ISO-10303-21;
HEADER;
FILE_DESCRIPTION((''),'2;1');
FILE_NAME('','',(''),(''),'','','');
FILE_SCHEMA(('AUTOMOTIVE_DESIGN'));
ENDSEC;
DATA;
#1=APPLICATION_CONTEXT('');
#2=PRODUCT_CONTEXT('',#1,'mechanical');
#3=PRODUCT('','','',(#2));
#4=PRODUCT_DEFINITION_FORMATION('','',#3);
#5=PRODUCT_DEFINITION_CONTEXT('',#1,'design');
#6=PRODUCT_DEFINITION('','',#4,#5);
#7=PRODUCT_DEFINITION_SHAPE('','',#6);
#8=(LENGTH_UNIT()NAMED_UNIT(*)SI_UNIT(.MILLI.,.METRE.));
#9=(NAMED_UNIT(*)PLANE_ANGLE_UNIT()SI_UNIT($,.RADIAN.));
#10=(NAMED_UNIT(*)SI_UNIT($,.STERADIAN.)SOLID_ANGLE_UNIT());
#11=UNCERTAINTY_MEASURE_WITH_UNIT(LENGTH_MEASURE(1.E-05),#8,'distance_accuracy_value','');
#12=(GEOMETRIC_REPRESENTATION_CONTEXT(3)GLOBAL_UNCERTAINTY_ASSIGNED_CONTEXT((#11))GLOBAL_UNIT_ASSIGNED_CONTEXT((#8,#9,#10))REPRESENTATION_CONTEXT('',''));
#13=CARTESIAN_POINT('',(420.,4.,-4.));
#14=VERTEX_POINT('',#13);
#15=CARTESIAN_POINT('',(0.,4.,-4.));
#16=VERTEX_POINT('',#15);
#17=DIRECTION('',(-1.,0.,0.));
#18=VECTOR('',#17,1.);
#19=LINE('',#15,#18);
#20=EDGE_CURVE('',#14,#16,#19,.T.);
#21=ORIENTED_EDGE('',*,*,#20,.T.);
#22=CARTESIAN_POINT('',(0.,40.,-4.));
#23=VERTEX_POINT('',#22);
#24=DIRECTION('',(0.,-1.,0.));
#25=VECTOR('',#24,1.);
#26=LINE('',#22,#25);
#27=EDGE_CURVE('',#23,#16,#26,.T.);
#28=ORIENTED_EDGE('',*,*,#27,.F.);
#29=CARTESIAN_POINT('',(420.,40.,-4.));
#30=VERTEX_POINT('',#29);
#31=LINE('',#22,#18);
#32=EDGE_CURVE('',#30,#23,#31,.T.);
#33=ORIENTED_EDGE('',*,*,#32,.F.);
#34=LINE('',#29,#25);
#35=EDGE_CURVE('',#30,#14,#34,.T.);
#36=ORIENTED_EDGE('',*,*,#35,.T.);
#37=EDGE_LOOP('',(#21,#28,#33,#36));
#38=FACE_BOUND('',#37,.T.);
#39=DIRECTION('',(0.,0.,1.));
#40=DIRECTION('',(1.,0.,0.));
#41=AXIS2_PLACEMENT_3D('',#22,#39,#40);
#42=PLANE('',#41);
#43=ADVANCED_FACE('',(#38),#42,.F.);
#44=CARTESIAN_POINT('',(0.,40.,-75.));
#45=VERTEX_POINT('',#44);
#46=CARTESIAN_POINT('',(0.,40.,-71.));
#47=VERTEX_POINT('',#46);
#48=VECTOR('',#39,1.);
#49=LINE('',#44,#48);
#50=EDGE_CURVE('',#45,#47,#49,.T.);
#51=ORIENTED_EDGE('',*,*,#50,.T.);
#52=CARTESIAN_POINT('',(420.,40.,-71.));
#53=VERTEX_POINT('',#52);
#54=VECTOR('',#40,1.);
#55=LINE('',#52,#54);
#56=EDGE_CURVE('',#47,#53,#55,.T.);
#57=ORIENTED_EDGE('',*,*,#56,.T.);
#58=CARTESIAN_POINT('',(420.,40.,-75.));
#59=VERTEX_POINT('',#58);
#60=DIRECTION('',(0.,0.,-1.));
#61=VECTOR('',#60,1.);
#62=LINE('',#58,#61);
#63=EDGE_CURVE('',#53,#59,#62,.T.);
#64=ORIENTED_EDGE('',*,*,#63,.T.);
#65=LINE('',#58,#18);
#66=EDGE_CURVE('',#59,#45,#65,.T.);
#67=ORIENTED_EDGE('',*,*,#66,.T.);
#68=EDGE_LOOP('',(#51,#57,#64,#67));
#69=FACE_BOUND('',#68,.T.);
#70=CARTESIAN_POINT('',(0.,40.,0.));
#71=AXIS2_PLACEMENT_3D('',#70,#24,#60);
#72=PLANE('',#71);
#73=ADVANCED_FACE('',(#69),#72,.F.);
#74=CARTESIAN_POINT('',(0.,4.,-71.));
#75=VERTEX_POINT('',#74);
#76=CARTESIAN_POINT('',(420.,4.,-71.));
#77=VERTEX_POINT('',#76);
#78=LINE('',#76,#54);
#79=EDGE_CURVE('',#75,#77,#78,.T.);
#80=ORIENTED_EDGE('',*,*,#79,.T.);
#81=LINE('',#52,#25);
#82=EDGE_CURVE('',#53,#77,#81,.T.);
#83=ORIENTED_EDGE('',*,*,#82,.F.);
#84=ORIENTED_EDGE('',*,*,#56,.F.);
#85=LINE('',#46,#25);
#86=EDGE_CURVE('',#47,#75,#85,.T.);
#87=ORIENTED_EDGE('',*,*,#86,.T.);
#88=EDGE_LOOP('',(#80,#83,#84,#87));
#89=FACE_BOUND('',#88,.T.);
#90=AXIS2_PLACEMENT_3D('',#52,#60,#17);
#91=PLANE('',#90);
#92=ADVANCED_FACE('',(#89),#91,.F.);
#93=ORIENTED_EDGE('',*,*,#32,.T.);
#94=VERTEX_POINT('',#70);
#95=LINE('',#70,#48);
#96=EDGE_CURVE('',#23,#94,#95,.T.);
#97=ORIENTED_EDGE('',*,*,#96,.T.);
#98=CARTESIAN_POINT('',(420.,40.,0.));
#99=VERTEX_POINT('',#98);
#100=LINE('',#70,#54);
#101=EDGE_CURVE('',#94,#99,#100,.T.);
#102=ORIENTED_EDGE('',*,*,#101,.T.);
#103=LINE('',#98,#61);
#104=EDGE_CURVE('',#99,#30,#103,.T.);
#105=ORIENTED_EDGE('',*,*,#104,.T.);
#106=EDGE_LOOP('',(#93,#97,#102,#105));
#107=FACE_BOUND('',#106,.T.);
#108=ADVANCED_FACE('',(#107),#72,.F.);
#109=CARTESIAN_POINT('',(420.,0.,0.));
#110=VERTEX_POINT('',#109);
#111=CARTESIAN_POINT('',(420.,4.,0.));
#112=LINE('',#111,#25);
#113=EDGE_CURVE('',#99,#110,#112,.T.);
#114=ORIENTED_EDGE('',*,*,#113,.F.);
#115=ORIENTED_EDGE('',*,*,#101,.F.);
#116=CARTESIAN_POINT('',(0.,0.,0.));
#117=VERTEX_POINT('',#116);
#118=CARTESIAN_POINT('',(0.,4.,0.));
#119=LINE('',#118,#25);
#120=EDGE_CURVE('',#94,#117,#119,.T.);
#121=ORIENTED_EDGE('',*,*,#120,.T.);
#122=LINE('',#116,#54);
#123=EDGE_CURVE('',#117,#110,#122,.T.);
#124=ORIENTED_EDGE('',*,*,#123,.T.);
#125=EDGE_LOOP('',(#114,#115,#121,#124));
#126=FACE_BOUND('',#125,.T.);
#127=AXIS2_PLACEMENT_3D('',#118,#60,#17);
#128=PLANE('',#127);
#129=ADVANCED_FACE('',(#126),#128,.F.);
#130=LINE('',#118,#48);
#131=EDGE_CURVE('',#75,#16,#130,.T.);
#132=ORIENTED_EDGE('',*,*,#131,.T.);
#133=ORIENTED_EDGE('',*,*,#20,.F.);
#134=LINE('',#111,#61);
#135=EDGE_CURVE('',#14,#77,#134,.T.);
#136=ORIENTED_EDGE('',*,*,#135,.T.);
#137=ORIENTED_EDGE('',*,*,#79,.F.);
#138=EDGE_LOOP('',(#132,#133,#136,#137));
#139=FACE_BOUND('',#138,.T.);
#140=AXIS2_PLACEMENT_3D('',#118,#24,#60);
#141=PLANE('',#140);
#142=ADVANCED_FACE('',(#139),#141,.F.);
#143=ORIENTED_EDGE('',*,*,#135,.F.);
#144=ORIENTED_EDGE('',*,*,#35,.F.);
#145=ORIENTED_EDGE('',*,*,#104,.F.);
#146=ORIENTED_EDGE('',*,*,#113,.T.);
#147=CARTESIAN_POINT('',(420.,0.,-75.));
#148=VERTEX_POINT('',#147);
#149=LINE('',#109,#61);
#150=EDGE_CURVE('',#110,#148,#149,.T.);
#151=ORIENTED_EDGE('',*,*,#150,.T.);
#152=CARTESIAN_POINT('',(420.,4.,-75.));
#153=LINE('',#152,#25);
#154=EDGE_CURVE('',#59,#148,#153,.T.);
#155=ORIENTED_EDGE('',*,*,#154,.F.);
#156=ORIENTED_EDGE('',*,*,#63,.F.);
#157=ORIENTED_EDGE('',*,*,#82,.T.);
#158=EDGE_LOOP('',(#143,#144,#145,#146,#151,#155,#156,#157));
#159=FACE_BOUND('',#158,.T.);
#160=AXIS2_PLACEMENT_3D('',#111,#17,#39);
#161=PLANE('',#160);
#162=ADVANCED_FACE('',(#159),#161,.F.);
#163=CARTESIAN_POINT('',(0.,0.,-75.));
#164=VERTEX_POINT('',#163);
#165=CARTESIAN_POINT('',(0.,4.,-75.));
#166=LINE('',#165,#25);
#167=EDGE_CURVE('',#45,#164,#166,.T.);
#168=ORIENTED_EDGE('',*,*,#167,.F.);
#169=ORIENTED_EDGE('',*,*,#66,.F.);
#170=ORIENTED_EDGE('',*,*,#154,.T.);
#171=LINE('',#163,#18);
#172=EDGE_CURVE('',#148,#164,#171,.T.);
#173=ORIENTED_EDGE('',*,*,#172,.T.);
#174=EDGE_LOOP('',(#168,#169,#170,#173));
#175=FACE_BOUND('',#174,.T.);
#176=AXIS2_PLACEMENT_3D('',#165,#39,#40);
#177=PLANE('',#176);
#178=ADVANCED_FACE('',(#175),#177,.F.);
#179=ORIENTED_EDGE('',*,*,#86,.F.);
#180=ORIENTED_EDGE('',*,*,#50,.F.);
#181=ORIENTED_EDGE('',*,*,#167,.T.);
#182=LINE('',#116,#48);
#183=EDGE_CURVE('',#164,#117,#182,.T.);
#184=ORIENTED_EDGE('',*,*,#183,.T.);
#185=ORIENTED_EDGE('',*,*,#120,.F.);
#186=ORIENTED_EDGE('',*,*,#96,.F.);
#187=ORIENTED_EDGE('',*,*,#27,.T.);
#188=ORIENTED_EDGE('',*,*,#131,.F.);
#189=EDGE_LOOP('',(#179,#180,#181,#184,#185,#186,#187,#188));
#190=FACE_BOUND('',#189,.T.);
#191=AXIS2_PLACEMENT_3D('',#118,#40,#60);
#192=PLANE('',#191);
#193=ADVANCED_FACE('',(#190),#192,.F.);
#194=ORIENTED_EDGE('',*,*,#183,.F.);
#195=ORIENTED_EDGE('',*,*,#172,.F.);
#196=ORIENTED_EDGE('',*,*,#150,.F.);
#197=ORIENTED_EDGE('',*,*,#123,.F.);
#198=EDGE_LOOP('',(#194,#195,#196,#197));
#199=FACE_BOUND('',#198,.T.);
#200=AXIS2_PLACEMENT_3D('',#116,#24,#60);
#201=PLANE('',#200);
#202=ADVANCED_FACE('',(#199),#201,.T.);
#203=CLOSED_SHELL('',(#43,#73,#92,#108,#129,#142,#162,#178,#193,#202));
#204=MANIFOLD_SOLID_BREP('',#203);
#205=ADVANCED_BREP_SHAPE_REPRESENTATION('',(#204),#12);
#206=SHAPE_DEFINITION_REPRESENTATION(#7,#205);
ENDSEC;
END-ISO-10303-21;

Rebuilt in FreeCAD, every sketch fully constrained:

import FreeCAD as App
import Part
import Sketcher
from FreeCAD import Vector

doc = App.newDocument("Part")
body = doc.addObject("PartDesign::Body", "Body")

# Sketch on XZ plane
sketch1 = doc.addObject("Sketcher::SketchObject", "Sketch")
body.addObject(sketch1)
sketch1.AttachmentSupport = (doc.XZ_Plane, [""])
sketch1.MapMode = "FlatFace"
sketch1.addGeometry(Part.LineSegment(Vector(0, -75, 0), Vector(0, 0, 0)), False)
sketch1.addGeometry(Part.LineSegment(Vector(0, 0, 0), Vector(420, 0, 0)), False)
sketch1.addGeometry(Part.LineSegment(Vector(420, 0, 0), Vector(420, -75, 0)), False)
sketch1.addGeometry(Part.LineSegment(Vector(420, -75, 0), Vector(0, -75, 0)), False)
sketch1.addConstraint(Sketcher.Constraint("Coincident", 0, 2, 1, 1))
sketch1.addConstraint(Sketcher.Constraint("Coincident", 1, 2, 2, 1))
sketch1.addConstraint(Sketcher.Constraint("Coincident", 2, 2, 3, 1))
sketch1.addConstraint(Sketcher.Constraint("Coincident", 3, 2, 0, 1))
sketch1.addConstraint(Sketcher.Constraint("Vertical", 0))
sketch1.addConstraint(Sketcher.Constraint("Horizontal", 1))
sketch1.addConstraint(Sketcher.Constraint("Vertical", 2))
sketch1.addConstraint(Sketcher.Constraint("Horizontal", 3))
sketch1.addConstraint(Sketcher.Constraint("Coincident", 0, 2, -1, 1))
sketch1.addConstraint(Sketcher.Constraint("DistanceX", 1, 1, 1, 2, 420.0))
sketch1.addConstraint(Sketcher.Constraint("DistanceY", 0, 1, 0, 2, 75.0))
pad1 = doc.addObject("PartDesign::Pad", "Pad")
body.addObject(pad1)
pad1.Profile = sketch1
pad1.Length = 4
pad1.Reversed = True

# Sketch on XZ plane
sketch2 = doc.addObject("Sketcher::SketchObject", "Sketch001")
body.addObject(sketch2)
sketch2.AttachmentSupport = (doc.XZ_Plane, [""])
sketch2.MapMode = "FlatFace"
sketch2.AttachmentOffset = App.Placement(Vector(0, 0, -4), App.Rotation())
sketch2.addGeometry(Part.LineSegment(Vector(0, -4, 0), Vector(0, 0, 0)), False)
sketch2.addGeometry(Part.LineSegment(Vector(0, 0, 0), Vector(420, 0, 0)), False)
sketch2.addGeometry(Part.LineSegment(Vector(420, 0, 0), Vector(420, -4, 0)), False)
sketch2.addGeometry(Part.LineSegment(Vector(420, -4, 0), Vector(0, -4, 0)), False)
sketch2.addGeometry(Part.LineSegment(Vector(0, -75, 0), Vector(0, -71, 0)), False)
sketch2.addGeometry(Part.LineSegment(Vector(0, -71, 0), Vector(420, -71, 0)), False)
sketch2.addGeometry(Part.LineSegment(Vector(420, -71, 0), Vector(420, -75, 0)), False)
sketch2.addGeometry(Part.LineSegment(Vector(420, -75, 0), Vector(0, -75, 0)), False)
sketch2.addConstraint(Sketcher.Constraint("Coincident", 0, 2, 1, 1))
sketch2.addConstraint(Sketcher.Constraint("Coincident", 1, 2, 2, 1))
sketch2.addConstraint(Sketcher.Constraint("Coincident", 2, 2, 3, 1))
sketch2.addConstraint(Sketcher.Constraint("Coincident", 3, 2, 0, 1))
sketch2.addConstraint(Sketcher.Constraint("Coincident", 4, 2, 5, 1))
sketch2.addConstraint(Sketcher.Constraint("Coincident", 5, 2, 6, 1))
sketch2.addConstraint(Sketcher.Constraint("Coincident", 6, 2, 7, 1))
sketch2.addConstraint(Sketcher.Constraint("Coincident", 7, 2, 4, 1))
sketch2.addConstraint(Sketcher.Constraint("Vertical", 0))
sketch2.addConstraint(Sketcher.Constraint("Horizontal", 1))
sketch2.addConstraint(Sketcher.Constraint("Vertical", 2))
sketch2.addConstraint(Sketcher.Constraint("Horizontal", 3))
sketch2.addConstraint(Sketcher.Constraint("Vertical", 4))
sketch2.addConstraint(Sketcher.Constraint("Horizontal", 5))
sketch2.addConstraint(Sketcher.Constraint("Vertical", 6))
sketch2.addConstraint(Sketcher.Constraint("Horizontal", 7))
sketch2.addConstraint(Sketcher.Constraint("Coincident", 0, 2, -1, 1))
sketch2.addConstraint(Sketcher.Constraint("PointOnObject", 4, 2, -2))
sketch2.addConstraint(Sketcher.Constraint("Vertical", 2, 2, 5, 2))
sketch2.addConstraint(Sketcher.Constraint("Equal", 2, 4))
sketch2.addConstraint(Sketcher.Constraint("DistanceX", 1, 1, 1, 2, 420.0))
sketch2.addConstraint(Sketcher.Constraint("DistanceY", 0, 1, 0, 2, 4.0))
sketch2.addConstraint(Sketcher.Constraint("DistanceY", 4, 2, -1, 1, 71.0))
pad2 = doc.addObject("PartDesign::Pad", "Pad001")
body.addObject(pad2)
pad2.Profile = sketch2
pad2.Length = 36
pad2.Reversed = True

doc.recompute()
